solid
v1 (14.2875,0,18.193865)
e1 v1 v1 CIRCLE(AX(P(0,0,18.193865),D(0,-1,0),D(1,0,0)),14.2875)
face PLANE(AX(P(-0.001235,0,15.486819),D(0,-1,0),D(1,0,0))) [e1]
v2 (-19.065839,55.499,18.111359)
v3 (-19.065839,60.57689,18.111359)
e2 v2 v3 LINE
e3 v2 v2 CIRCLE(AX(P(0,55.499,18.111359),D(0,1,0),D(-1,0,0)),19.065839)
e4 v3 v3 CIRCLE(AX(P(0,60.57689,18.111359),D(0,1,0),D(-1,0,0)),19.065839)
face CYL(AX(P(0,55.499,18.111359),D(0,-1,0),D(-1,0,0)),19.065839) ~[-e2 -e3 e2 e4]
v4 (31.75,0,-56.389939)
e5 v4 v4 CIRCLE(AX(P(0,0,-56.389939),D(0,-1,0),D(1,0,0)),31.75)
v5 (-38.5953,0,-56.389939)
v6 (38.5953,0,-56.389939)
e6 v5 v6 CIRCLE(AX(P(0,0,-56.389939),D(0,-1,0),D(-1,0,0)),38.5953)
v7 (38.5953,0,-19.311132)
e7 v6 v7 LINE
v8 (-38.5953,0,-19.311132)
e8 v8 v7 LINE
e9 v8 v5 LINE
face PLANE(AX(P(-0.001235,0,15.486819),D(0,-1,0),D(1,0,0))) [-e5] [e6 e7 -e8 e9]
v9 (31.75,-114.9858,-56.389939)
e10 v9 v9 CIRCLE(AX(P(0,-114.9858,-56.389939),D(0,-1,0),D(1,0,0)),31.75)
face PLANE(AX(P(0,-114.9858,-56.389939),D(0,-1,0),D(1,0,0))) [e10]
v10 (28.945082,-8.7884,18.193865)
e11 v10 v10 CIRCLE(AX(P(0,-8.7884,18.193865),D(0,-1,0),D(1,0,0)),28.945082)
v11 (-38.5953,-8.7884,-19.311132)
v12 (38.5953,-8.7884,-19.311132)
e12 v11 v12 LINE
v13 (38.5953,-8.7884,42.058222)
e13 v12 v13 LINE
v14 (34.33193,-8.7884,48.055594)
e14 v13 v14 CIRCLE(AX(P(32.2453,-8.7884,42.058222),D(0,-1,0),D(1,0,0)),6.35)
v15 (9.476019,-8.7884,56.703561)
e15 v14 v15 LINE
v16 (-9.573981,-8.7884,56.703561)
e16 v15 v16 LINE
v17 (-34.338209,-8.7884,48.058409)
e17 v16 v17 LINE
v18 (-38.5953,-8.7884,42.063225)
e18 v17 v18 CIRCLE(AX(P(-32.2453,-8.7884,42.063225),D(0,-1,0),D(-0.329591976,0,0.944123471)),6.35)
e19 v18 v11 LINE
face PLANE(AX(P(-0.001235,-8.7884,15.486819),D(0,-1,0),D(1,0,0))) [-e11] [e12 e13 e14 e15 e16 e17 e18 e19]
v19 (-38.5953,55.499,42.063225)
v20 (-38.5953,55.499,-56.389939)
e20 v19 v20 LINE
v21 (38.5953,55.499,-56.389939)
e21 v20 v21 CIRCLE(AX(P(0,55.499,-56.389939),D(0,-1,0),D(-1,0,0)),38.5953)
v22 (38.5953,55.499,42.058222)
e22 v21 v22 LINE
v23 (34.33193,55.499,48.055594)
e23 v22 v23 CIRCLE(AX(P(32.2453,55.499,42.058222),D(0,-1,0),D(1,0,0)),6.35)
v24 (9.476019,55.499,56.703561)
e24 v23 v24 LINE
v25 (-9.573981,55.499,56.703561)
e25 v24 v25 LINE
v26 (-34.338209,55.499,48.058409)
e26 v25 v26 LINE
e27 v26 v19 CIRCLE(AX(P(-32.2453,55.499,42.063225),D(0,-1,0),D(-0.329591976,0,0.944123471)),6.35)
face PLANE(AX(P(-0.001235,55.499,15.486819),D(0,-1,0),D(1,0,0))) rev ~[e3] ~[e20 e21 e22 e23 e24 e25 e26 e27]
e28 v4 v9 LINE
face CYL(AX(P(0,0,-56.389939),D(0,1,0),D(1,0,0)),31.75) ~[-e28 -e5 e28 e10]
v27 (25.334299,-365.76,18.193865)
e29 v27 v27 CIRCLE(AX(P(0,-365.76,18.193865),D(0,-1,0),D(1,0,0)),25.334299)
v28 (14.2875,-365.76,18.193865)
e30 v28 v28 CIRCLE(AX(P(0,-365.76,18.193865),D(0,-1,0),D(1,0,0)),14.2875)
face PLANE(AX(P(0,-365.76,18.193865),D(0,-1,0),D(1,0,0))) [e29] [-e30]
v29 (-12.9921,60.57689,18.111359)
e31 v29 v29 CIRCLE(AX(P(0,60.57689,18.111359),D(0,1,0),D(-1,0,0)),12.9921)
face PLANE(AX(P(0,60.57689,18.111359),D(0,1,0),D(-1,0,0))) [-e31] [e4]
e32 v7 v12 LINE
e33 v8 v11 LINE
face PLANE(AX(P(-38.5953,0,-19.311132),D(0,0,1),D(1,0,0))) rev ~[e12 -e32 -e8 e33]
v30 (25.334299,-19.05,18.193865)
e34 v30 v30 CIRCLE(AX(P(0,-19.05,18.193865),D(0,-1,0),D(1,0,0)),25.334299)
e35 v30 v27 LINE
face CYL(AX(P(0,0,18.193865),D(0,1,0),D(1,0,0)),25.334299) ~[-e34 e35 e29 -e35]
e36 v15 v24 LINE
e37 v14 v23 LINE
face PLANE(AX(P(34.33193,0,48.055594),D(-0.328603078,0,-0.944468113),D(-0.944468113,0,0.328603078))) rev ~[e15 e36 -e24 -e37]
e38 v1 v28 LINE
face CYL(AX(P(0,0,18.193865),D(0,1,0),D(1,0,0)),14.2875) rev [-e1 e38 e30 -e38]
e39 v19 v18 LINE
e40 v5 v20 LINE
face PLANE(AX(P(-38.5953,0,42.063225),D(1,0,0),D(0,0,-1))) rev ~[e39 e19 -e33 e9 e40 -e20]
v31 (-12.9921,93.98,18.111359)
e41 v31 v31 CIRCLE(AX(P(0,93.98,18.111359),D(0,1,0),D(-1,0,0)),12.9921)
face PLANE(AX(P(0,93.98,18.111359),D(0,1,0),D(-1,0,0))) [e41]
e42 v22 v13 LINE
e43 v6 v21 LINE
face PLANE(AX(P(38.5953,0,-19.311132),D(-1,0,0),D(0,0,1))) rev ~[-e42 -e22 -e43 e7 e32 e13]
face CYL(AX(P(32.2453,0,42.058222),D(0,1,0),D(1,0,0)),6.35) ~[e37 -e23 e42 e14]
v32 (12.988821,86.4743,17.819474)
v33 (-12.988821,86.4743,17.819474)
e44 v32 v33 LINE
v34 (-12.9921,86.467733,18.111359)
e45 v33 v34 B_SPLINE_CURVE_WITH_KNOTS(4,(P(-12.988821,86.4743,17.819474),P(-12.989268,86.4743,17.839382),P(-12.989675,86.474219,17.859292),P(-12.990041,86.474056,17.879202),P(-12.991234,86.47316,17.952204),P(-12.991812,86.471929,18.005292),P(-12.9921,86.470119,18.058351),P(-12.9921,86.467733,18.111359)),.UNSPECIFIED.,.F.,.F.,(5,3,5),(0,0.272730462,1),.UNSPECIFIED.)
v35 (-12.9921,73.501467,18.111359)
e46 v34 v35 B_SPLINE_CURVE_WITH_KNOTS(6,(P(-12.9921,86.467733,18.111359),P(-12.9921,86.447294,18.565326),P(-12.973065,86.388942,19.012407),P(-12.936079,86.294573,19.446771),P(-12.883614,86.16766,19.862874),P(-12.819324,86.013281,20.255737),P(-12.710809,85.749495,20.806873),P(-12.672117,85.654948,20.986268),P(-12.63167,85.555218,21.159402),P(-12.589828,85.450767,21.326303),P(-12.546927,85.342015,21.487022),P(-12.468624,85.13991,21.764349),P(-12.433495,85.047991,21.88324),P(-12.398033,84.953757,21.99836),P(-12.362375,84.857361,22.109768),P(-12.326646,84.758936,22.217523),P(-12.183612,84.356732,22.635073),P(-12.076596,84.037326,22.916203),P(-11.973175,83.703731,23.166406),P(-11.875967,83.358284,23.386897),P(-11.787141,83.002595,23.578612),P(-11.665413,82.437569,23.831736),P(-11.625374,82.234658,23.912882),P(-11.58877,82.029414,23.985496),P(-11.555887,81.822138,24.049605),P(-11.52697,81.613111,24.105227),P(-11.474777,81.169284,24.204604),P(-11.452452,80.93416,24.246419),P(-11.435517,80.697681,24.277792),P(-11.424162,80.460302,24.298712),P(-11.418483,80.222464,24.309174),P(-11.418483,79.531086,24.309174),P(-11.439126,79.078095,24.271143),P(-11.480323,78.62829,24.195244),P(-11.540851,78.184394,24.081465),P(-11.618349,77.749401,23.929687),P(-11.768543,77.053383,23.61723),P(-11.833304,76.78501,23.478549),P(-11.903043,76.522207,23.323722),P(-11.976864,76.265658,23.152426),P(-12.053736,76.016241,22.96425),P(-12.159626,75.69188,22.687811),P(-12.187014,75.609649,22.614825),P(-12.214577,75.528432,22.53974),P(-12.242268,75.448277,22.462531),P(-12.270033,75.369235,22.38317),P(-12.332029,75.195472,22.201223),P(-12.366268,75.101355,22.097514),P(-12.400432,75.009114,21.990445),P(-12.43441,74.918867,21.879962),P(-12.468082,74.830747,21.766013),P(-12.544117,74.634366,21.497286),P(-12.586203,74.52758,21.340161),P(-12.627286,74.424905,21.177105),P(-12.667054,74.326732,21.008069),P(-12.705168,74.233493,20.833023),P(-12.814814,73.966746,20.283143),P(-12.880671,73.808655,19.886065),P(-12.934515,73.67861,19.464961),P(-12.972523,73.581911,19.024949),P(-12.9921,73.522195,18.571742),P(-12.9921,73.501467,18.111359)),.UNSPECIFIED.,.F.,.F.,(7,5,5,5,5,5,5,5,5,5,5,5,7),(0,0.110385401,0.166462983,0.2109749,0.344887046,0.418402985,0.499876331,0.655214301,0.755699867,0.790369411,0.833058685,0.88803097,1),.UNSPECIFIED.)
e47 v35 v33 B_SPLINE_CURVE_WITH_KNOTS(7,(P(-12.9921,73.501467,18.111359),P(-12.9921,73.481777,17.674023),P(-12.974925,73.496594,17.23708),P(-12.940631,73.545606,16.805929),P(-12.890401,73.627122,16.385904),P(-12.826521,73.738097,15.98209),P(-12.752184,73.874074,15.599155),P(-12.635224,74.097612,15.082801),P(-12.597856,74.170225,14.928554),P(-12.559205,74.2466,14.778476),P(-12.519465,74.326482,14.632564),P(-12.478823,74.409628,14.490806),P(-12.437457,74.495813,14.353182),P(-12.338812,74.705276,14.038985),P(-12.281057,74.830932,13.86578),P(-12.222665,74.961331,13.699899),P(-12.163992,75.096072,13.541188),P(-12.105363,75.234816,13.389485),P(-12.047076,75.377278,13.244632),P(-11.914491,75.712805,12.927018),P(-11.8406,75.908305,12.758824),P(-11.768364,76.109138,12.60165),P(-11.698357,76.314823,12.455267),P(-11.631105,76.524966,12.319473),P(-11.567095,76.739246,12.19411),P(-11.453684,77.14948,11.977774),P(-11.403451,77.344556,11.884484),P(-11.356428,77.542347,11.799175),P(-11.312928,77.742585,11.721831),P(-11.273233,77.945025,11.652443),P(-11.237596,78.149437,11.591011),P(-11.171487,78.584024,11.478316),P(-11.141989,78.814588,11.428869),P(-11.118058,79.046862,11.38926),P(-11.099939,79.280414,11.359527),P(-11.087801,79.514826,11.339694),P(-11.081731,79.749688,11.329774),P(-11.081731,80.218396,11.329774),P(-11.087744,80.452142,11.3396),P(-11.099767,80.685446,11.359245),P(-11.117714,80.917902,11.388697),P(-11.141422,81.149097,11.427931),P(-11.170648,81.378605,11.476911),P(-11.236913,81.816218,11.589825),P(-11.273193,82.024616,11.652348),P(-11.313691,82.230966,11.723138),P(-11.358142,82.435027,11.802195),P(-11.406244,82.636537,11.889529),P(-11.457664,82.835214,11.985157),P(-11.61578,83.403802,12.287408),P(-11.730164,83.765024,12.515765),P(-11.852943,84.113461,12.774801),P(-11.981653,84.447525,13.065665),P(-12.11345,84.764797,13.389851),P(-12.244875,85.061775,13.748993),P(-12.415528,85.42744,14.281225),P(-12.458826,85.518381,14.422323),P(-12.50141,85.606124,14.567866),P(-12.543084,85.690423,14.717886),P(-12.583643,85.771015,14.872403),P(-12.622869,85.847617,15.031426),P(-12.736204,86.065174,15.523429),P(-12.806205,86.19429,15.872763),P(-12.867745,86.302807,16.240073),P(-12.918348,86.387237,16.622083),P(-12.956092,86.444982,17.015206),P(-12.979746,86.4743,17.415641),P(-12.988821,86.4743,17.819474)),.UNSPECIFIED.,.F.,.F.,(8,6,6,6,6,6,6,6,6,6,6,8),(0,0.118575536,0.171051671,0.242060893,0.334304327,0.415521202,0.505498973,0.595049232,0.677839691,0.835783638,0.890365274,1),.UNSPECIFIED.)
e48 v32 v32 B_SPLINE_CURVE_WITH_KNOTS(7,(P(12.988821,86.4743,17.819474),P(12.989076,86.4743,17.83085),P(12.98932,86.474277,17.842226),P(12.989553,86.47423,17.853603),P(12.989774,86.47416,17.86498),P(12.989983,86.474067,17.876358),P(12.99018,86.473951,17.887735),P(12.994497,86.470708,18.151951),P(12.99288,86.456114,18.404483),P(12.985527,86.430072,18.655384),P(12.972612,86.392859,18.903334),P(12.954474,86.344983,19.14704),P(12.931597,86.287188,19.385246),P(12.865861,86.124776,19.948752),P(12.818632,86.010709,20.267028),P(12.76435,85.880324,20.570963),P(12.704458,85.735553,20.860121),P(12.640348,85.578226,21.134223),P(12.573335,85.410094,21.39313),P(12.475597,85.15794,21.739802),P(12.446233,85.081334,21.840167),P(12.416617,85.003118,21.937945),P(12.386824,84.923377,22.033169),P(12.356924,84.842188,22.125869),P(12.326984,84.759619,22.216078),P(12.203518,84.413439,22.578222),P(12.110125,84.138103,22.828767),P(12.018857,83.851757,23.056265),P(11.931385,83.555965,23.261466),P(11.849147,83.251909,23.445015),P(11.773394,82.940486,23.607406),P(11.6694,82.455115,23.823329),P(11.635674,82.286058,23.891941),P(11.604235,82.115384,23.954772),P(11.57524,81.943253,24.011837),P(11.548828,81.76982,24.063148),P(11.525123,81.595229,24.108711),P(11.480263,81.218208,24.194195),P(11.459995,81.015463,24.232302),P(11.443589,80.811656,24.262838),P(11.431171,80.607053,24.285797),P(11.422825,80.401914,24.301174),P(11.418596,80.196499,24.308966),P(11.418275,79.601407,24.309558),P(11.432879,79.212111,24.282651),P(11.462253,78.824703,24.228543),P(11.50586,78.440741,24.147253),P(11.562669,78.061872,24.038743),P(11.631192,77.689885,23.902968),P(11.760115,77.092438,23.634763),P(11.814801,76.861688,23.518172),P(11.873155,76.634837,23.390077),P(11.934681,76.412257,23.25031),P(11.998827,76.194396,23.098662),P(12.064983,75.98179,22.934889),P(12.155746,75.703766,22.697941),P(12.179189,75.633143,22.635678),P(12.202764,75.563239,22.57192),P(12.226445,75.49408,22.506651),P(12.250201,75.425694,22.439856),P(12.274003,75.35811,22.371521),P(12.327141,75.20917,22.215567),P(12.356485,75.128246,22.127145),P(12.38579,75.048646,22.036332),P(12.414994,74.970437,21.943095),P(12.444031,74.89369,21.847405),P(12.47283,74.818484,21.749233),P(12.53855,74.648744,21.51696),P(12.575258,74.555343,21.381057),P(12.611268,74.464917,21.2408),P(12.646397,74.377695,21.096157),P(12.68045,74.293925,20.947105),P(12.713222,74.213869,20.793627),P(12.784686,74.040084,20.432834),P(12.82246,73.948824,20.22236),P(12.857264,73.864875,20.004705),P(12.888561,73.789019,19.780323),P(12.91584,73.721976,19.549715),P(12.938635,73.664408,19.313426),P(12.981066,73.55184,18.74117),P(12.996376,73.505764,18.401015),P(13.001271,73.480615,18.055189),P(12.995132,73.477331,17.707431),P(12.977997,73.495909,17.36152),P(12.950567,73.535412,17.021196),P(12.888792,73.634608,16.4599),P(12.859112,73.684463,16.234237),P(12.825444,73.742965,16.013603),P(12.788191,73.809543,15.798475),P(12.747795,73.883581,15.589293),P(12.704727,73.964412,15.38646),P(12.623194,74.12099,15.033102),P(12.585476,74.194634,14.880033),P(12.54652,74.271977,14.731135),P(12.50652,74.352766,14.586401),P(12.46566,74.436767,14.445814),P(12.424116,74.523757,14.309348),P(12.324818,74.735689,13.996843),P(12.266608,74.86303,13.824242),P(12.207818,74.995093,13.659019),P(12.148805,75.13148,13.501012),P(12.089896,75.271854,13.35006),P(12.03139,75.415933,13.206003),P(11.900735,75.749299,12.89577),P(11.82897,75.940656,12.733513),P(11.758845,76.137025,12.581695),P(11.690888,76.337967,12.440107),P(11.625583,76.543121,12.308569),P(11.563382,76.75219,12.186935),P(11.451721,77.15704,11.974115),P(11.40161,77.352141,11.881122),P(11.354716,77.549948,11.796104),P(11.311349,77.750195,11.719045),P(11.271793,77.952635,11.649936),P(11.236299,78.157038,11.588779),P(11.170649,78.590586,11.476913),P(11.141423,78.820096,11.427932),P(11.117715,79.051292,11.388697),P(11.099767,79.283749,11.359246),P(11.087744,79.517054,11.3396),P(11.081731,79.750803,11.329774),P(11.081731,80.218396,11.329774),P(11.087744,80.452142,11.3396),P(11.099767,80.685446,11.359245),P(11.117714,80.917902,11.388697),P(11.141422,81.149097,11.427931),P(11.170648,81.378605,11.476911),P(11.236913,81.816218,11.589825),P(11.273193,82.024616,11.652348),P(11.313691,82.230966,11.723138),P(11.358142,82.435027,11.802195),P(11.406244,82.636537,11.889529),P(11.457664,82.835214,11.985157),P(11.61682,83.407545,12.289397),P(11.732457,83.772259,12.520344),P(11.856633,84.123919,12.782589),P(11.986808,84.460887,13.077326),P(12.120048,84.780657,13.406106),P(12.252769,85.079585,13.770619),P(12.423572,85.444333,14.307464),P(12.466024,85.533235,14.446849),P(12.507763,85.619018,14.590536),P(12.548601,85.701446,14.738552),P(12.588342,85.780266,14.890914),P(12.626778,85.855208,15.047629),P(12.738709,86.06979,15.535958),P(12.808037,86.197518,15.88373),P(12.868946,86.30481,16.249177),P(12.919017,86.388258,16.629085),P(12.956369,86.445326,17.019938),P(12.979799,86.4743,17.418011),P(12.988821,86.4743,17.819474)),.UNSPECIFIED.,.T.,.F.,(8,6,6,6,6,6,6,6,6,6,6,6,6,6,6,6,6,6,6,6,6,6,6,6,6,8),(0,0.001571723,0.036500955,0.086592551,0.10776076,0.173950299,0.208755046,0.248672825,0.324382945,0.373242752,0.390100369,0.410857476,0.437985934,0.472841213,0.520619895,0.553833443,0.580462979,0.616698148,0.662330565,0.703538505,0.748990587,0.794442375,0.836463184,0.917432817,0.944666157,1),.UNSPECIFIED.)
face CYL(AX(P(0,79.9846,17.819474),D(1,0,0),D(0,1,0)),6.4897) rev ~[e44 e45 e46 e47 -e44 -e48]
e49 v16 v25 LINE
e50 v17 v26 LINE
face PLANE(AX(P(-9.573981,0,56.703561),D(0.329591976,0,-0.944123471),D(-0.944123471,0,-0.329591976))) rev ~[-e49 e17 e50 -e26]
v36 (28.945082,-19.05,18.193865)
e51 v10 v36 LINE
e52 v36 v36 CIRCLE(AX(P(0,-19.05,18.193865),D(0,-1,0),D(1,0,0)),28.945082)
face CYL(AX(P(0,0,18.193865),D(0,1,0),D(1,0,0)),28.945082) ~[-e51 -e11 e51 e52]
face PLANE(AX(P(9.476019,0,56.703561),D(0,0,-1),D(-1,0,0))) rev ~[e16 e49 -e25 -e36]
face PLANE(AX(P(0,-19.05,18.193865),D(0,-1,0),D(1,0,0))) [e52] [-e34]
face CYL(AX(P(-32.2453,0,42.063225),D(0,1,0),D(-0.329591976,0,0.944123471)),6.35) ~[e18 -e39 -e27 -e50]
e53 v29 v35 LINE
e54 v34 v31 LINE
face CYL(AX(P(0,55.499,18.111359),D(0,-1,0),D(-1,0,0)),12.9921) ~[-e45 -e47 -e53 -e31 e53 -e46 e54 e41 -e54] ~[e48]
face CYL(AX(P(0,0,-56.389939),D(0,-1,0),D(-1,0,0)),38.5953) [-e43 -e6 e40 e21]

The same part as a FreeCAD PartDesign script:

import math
import FreeCAD as App
import Part
import Sketcher

V = App.Vector
Q = App.Units.Quantity

doc = App.newDocument("Part")
body = doc.addObject("PartDesign::Body", "Body")

# Sketch on XZ plane
sketch1 = body.newObject("Sketcher::SketchObject", "Sketch")
sketch1.AttachmentSupport = (doc.getObject("XZ_Plane"), [""])
sketch1.MapMode = "FlatFace"
sketch1.addGeometry([
    Part.ArcOfCircle(Part.Circle(V(-32.2453, 42.063225, 0), V(0, 0, 1), 6.35), math.radians(109.244012), math.radians(180)),  # 0
    Part.LineSegment(V(-38.5953, 42.063225, 0), V(-38.5953, -56.389939, 0)),  # 1
    Part.ArcOfCircle(Part.Circle(V(0, -56.389939, 0), V(0, 0, 1), 38.5953), math.radians(180), math.radians(360)),  # 2
    Part.LineSegment(V(38.5953, -56.389939, 0), V(38.5953, 42.058222, 0)),  # 3
    Part.ArcOfCircle(Part.Circle(V(32.2453, 42.058222, 0), V(0, 0, 1), 6.35), math.radians(0), math.radians(70.81599)),  # 4
    Part.LineSegment(V(34.33193, 48.055594, 0), V(9.476019, 56.703561, 0)),  # 5
    Part.LineSegment(V(9.476019, 56.703561, 0), V(-9.573981, 56.703561, 0)),  # 6
    Part.LineSegment(V(-9.573981, 56.703561, 0), V(-34.338209, 48.058409, 0)),  # 7
], False)
sketch1.addConstraint([
    Sketcher.Constraint("Tangent", 0, 2, 1, 1),
    Sketcher.Constraint("Tangent", 1, 2, 2, 1),
    Sketcher.Constraint("Tangent", 2, 2, 3, 1),
    Sketcher.Constraint("Tangent", 3, 2, 4, 1),
    Sketcher.Constraint("Tangent", 4, 2, 5, 1),
    Sketcher.Constraint("Coincident", 5, 2, 6, 1),
    Sketcher.Constraint("Coincident", 6, 2, 7, 1),
    Sketcher.Constraint("Tangent", 7, 2, 0, 1),
    Sketcher.Constraint("Vertical", 1),
    Sketcher.Constraint("Vertical", 3),
    Sketcher.Constraint("Horizontal", 6),
    Sketcher.Constraint("Equal", 0, 4),
    Sketcher.Constraint("PointOnObject", 2, 3, -2),
    Sketcher.Constraint("Radius", 0, Q("0.25 in")),
    Sketcher.Constraint("DistanceX", 6, 2, 6, 1, Q("0.75 in")),
    Sketcher.Constraint("Radius", 2, Q("1.5195 in")),
    Sketcher.Constraint("DistanceY", 3, 1, 3, 2, Q("98.448161 mm")),
    Sketcher.Constraint("Distance", 7, Q("26.229861 mm")),
    Sketcher.Constraint("DistanceY", 1, 2, 1, 1, Q("98.453164 mm")),
    Sketcher.Constraint("DistanceY", 2, 3, -1, 1, Q("56.389939 mm")),
    Sketcher.Constraint("DistanceX", -1, 1, 4, 2, Q("34.33193 mm")),
])
pad1 = body.newObject("PartDesign::Pad", "Pad")
pad1.Profile = sketch1
pad1.Length = Q("2.185 in")
pad1.Reversed = True

# Sketch on XZ plane
sketch2 = body.newObject("Sketcher::SketchObject", "Sketch001")
sketch2.AttachmentSupport = (doc.getObject("XZ_Plane"), [""])
sketch2.MapMode = "FlatFace"
sketch2.addGeometry(Part.Circle(V(0, -56.389939, 0), V(0, 0, 1), 31.75), False)
sketch2.addConstraint([
    Sketcher.Constraint("PointOnObject", 0, 3, -2),
    Sketcher.Constraint("Diameter", 0, Q("2.5 in")),
    Sketcher.Constraint("DistanceY", 0, 3, -1, 1, Q("56.389939 mm")),
])
pad2 = body.newObject("PartDesign::Pad", "Pad001")
pad2.Profile = sketch2
pad2.Length = Q("4.527 in")

# Sketch on XZ plane
sketch3 = body.newObject("Sketcher::SketchObject", "Sketch002")
sketch3.AttachmentSupport = (doc.getObject("XZ_Plane"), [""])
sketch3.MapMode = "FlatFace"
sketch3.addGeometry([
    Part.Circle(V(0, 18.193865, 0), V(0, 0, 1), 25.334299),
    Part.Circle(V(0, 18.193865, 0), V(0, 0, 1), 14.2875),
], False)
sketch3.addConstraint([
    Sketcher.Constraint("Coincident", 1, 3, 0, 3),
    Sketcher.Constraint("PointOnObject", 0, 3, -2),
    Sketcher.Constraint("Diameter", 1, Q("1.125 in")),
    Sketcher.Constraint("Diameter", 0, Q("50.668597 mm")),
    Sketcher.Constraint("DistanceY", -1, 1, 0, 3, Q("18.193865 mm")),
])
pad3 = body.newObject("PartDesign::Pad", "Pad002")
pad3.Profile = sketch3
pad3.Length = Q("14.4 in")

# Sketch on XZ plane
sketch4 = body.newObject("Sketcher::SketchObject", "Sketch003")
sketch4.AttachmentSupport = (doc.getObject("XZ_Plane"), [""])
sketch4.MapMode = "FlatFace"
sketch4.addGeometry([
    Part.ArcOfCircle(Part.Circle(V(-32.2453, 42.063225, 0), V(0, 0, 1), 6.35), math.radians(109.244012), math.radians(180)),  # 0
    Part.LineSegment(V(-38.5953, 42.063225, 0), V(-38.5953, -19.311132, 0)),  # 1
    Part.LineSegment(V(-38.5953, -19.311132, 0), V(38.5953, -19.311132, 0)),  # 2
    Part.LineSegment(V(38.5953, -19.311132, 0), V(38.5953, 42.058222, 0)),  # 3
    Part.ArcOfCircle(Part.Circle(V(32.2453, 42.058222, 0), V(0, 0, 1), 6.35), math.radians(0), math.radians(70.81599)),  # 4
    Part.LineSegment(V(34.33193, 48.055594, 0), V(9.476019, 56.703561, 0)),  # 5
    Part.LineSegment(V(9.476019, 56.703561, 0), V(-9.573981, 56.703561, 0)),  # 6
    Part.LineSegment(V(-9.573981, 56.703561, 0), V(-34.338209, 48.058409, 0)),  # 7
    Part.Circle(V(0, 18.193865, 0), V(0, 0, 1), 28.945082),  # 8
], False)
sketch4.addConstraint([
    Sketcher.Constraint("Tangent", 0, 2, 1, 1),
    Sketcher.Constraint("Coincident", 1, 2, 2, 1),
    Sketcher.Constraint("Coincident", 2, 2, 3, 1),
    Sketcher.Constraint("Tangent", 3, 2, 4, 1),
    Sketcher.Constraint("Tangent", 4, 2, 5, 1),
    Sketcher.Constraint("Coincident", 5, 2, 6, 1),
    Sketcher.Constraint("Coincident", 6, 2, 7, 1),
    Sketcher.Constraint("Tangent", 7, 2, 0, 1),
    Sketcher.Constraint("Vertical", 1),
    Sketcher.Constraint("Horizontal", 2),
    Sketcher.Constraint("Vertical", 3),
    Sketcher.Constraint("Horizontal", 6),
    Sketcher.Constraint("Equal", 0, 4),
    Sketcher.Constraint("PointOnObject", 8, 3, -2),
    Sketcher.Constraint("Radius", 0, Q("0.25 in")),
    Sketcher.Constraint("DistanceX", 6, 2, 6, 1, Q("0.75 in")),
    Sketcher.Constraint("DistanceX", 2, 1, 2, 2, Q("3.039 in")),
    Sketcher.Constraint("Diameter", 8, Q("57.890164 mm")),
    Sketcher.Constraint("DistanceX", 0, 3, -1, 1, Q("1.2695 in")),
    Sketcher.Constraint("Distance", 7, Q("26.229861 mm")),
    Sketcher.Constraint("DistanceY", 1, 2, 1, 1, Q("61.374357 mm")),
    Sketcher.Constraint("DistanceY", 3, 1, 3, 2, Q("61.369354 mm")),
    Sketcher.Constraint("DistanceY", -1, 1, 4, 3, Q("42.058222 mm")),
    Sketcher.Constraint("DistanceX", -1, 1, 4, 2, Q("34.33193 mm")),
    Sketcher.Constraint("DistanceY", 8, 3, 0, 3, Q("23.86936 mm")),
])
pad4 = body.newObject("PartDesign::Pad", "Pad003")
pad4.Profile = sketch4
pad4.Length = Q("0.346 in")

# Sketch on XZ plane
sketch5 = body.newObject("Sketcher::SketchObject", "Sketch004")
sketch5.AttachmentSupport = (doc.getObject("XZ_Plane"), [""])
sketch5.MapMode = "FlatFace"
sketch5.addGeometry([
    Part.Circle(V(0, 18.193865, 0), V(0, 0, 1), 28.945082),
    Part.Circle(V(0, 18.193865, 0), V(0, 0, 1), 25.334299),
], False)
sketch5.addConstraint([
    Sketcher.Constraint("Coincident", 1, 3, 0, 3),
    Sketcher.Constraint("PointOnObject", 0, 3, -2),
    Sketcher.Constraint("Diameter", 0, Q("57.890164 mm")),
    Sketcher.Constraint("Diameter", 1, Q("50.668597 mm")),
    Sketcher.Constraint("DistanceY", -1, 1, 0, 3, Q("18.193865 mm")),
])
pad5 = body.newObject("PartDesign::Pad", "Pad004")
pad5.Profile = sketch5
pad5.Length = Q("0.75 in")

# Sketch on XZ plane
sketch6 = body.newObject("Sketcher::SketchObject", "Sketch005")
sketch6.AttachmentSupport = (doc.getObject("XZ_Plane"), [""])
sketch6.MapMode = "FlatFace"
sketch6.AttachmentOffset = App.Placement(V(0, 0, -2.185 * 25.4), App.Rotation())
sketch6.addGeometry(Part.Circle(V(0, 18.111359, 0), V(0, 0, 1), 12.9921), False)
sketch6.addConstraint([
    Sketcher.Constraint("PointOnObject", 0, 3, -2),
    Sketcher.Constraint("Diameter", 0, Q("1.023 in")),
    Sketcher.Constraint("DistanceY", -1, 1, 0, 3, Q("18.111359 mm")),
])
pad6 = body.newObject("PartDesign::Pad", "Pad005")
pad6.Profile = sketch6
pad6.Length = Q("1.515 in")
pad6.Reversed = True

# Sketch on XZ plane
sketch7 = body.newObject("Sketcher::SketchObject", "Sketch006")
sketch7.AttachmentSupport = (doc.getObject("XZ_Plane"), [""])
sketch7.MapMode = "FlatFace"
sketch7.AttachmentOffset = App.Placement(V(0, 0, -2.185 * 25.4), App.Rotation())
sketch7.addGeometry([
    Part.Circle(V(0, 18.111359, 0), V(0, 0, 1), 19.065839),
    Part.Circle(V(0, 18.111359, 0), V(0, 0, 1), 12.9921),
], False)
sketch7.addConstraint([
    Sketcher.Constraint("Coincident", 1, 3, 0, 3),
    Sketcher.Constraint("PointOnObject", 0, 3, -2),
    Sketcher.Constraint("Diameter", 1, Q("1.023 in")),
    Sketcher.Constraint("Diameter", 0, Q("38.131679 mm")),
    Sketcher.Constraint("DistanceY", -1, 1, 0, 3, Q("18.111359 mm")),
])
pad7 = body.newObject("PartDesign::Pad", "Pad006")
pad7.Profile = sketch7
pad7.Length = 5.07789
pad7.Reversed = True

# Sketch on YZ plane
sketch8 = body.newObject("Sketcher::SketchObject", "Sketch007")
sketch8.AttachmentSupport = (doc.getObject("YZ_Plane"), [""])
sketch8.MapMode = "FlatFace"
sketch8.addGeometry(Part.Circle(V(79.9846, 17.819474, 0), V(0, 0, 1), 6.4897), False)
sketch8.addConstraint([
    Sketcher.Constraint("Diameter", 0, Q("0.511 in")),
    Sketcher.Constraint("DistanceX", -1, 1, 0, 3, Q("3.149 in")),
    Sketcher.Constraint("DistanceY", -1, 1, 0, 3, Q("17.819474 mm")),
])
pocket1 = body.newObject("PartDesign::Pocket", "Pocket")
pocket1.Profile = sketch8
pocket1.Length = Q("1 in")

# Sketch on YZ plane
sketch9 = body.newObject("Sketcher::SketchObject", "Sketch008")
sketch9.AttachmentSupport = (doc.getObject("YZ_Plane"), [""])
sketch9.MapMode = "FlatFace"
sketch9.addGeometry(Part.Circle(V(79.9846, 17.819474, 0), V(0, 0, 1), 6.4897), False)
sketch9.addConstraint([
    Sketcher.Constraint("Diameter", 0, Q("0.511 in")),
    Sketcher.Constraint("DistanceX", -1, 1, 0, 3, Q("3.149 in")),
    Sketcher.Constraint("DistanceY", -1, 1, 0, 3, Q("17.819474 mm")),
])
pocket2 = body.newObject("PartDesign::Pocket", "Pocket001")
pocket2.Profile = sketch9
pocket2.Length = Q("2 in")
pocket2.Midplane = True

doc.recompute()
